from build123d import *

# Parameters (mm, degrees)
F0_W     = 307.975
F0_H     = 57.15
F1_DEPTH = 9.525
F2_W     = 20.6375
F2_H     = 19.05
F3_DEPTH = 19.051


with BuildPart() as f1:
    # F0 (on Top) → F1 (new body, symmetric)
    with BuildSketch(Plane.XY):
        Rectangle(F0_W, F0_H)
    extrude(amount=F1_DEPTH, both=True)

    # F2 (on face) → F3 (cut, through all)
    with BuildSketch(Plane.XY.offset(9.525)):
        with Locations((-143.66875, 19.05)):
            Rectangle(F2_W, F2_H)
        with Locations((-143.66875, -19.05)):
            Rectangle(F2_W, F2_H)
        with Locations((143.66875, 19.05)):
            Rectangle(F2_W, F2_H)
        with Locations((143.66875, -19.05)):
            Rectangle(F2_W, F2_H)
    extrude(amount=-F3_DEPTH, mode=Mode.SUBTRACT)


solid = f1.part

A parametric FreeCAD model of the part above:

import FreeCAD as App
import Part
import Sketcher
from FreeCAD import Vector
Q = App.Units.Quantity

doc = App.newDocument("Part")
body = doc.addObject("PartDesign::Body", "Body")

sketch1 = body.newObject("Sketcher::SketchObject", "Sketch")
sketch1.AttachmentSupport = (doc.getObject("XY_Plane"), [""])
sketch1.MapMode = "FlatFace"
sketch1.addGeometry(Part.LineSegment(Vector(-154, 29, 0), Vector(-154, -29, 0)), False)
sketch1.addGeometry(Part.LineSegment(Vector(-154, -29, 0), Vector(154, -29, 0)), False)
sketch1.addGeometry(Part.LineSegment(Vector(154, -29, 0), Vector(154, 29, 0)), False)
sketch1.addGeometry(Part.LineSegment(Vector(154, 29, 0), Vector(-154, 29, 0)), False)
sketch1.addConstraint(Sketcher.Constraint("Coincident", 0, 2, 1, 1))
sketch1.addConstraint(Sketcher.Constraint("Coincident", 1, 2, 2, 1))
sketch1.addConstraint(Sketcher.Constraint("Coincident", 2, 2, 3, 1))
sketch1.addConstraint(Sketcher.Constraint("Coincident", 3, 2, 0, 1))
sketch1.addConstraint(Sketcher.Constraint("Vertical", 0))
sketch1.addConstraint(Sketcher.Constraint("Horizontal", 1))
sketch1.addConstraint(Sketcher.Constraint("Vertical", 2))
sketch1.addConstraint(Sketcher.Constraint("Horizontal", 3))
sketch1.addConstraint(Sketcher.Constraint("Symmetric", 0, 2, 2, 2, -1, 1))
sketch1.addConstraint(Sketcher.Constraint("DistanceY", 0, 2, 0, 1, Q("2.25 in")))
sketch1.addConstraint(Sketcher.Constraint("DistanceX", 1, 1, 1, 2, Q("12.125 in")))
pad1 = body.newObject("PartDesign::Pad", "Pad")
pad1.Profile = sketch1
pad1.Length = Q("0.75 in")
pad1.Midplane = True

sketch2 = body.newObject("Sketcher::SketchObject", "Sketch001")
sketch2.AttachmentSupport = (doc.getObject("XY_Plane"), [""])
sketch2.MapMode = "FlatFace"
sketch2.AttachmentOffset = App.Placement(Vector(0, 0, 0.375 * 25.4), App.Rotation())
sketch2.addGeometry(Part.LineSegment(Vector(-154, 29, 0), Vector(-154, 10, 0)), False)
sketch2.addGeometry(Part.LineSegment(Vector(-154, 10, 0), Vector(-133, 10, 0)), False)
sketch2.addGeometry(Part.LineSegment(Vector(-133, 10, 0), Vector(-133, 29, 0)), False)
sketch2.addGeometry(Part.LineSegment(Vector(-133, 29, 0), Vector(-154, 29, 0)), False)
sketch2.addGeometry(Part.LineSegment(Vector(-154, -10, 0), Vector(-154, -29, 0)), False)
sketch2.addGeometry(Part.LineSegment(Vector(-154, -29, 0), Vector(-133, -29, 0)), False)
sketch2.addGeometry(Part.LineSegment(Vector(-133, -29, 0), Vector(-133, -10, 0)), False)
sketch2.addGeometry(Part.LineSegment(Vector(-133, -10, 0), Vector(-154, -10, 0)), False)
sketch2.addGeometry(Part.LineSegment(Vector(133, 29, 0), Vector(133, 10, 0)), False)
sketch2.addGeometry(Part.LineSegment(Vector(133, 10, 0), Vector(154, 10, 0)), False)
sketch2.addGeometry(Part.LineSegment(Vector(154, 10, 0), Vector(154, 29, 0)), False)
sketch2.addGeometry(Part.LineSegment(Vector(154, 29, 0), Vector(133, 29, 0)), False)
sketch2.addGeometry(Part.LineSegment(Vector(133, -10, 0), Vector(133, -29, 0)), False)
sketch2.addGeometry(Part.LineSegment(Vector(133, -29, 0), Vector(154, -29, 0)), False)
sketch2.addGeometry(Part.LineSegment(Vector(154, -29, 0), Vector(154, -10, 0)), False)
sketch2.addGeometry(Part.LineSegment(Vector(154, -10, 0), Vector(133, -10, 0)), False)
sketch2.addConstraint(Sketcher.Constraint("Coincident", 0, 2, 1, 1))
sketch2.addConstraint(Sketcher.Constraint("Coincident", 1, 2, 2, 1))
sketch2.addConstraint(Sketcher.Constraint("Coincident", 2, 2, 3, 1))
sketch2.addConstraint(Sketcher.Constraint("Coincident", 3, 2, 0, 1))
sketch2.addConstraint(Sketcher.Constraint("Coincident", 4, 2, 5, 1))
sketch2.addConstraint(Sketcher.Constraint("Coincident", 5, 2, 6, 1))
sketch2.addConstraint(Sketcher.Constraint("Coincident", 6, 2, 7, 1))
sketch2.addConstraint(Sketcher.Constraint("Coincident", 7, 2, 4, 1))
sketch2.addConstraint(Sketcher.Constraint("Coincident", 8, 2, 9, 1))
sketch2.addConstraint(Sketcher.Constraint("Coincident", 9, 2, 10, 1))
sketch2.addConstraint(Sketcher.Constraint("Coincident", 10, 2, 11, 1))
sketch2.addConstraint(Sketcher.Constraint("Coincident", 11, 2, 8, 1))
sketch2.addConstraint(Sketcher.Constraint("Coincident", 12, 2, 13, 1))
sketch2.addConstraint(Sketcher.Constraint("Coincident", 13, 2, 14, 1))
sketch2.addConstraint(Sketcher.Constraint("Coincident", 14, 2, 15, 1))
sketch2.addConstraint(Sketcher.Constraint("Coincident", 15, 2, 12, 1))
sketch2.addConstraint(Sketcher.Constraint("Vertical", 0))
sketch2.addConstraint(Sketcher.Constraint("Horizontal", 1))
sketch2.addConstraint(Sketcher.Constraint("Vertical", 2))
sketch2.addConstraint(Sketcher.Constraint("Horizontal", 3))
sketch2.addConstraint(Sketcher.Constraint("Vertical", 4))
sketch2.addConstraint(Sketcher.Constraint("Horizontal", 5))
sketch2.addConstraint(Sketcher.Constraint("Vertical", 6))
sketch2.addConstraint(Sketcher.Constraint("Horizontal", 7))
sketch2.addConstraint(Sketcher.Constraint("Vertical", 8))
sketch2.addConstraint(Sketcher.Constraint("Horizontal", 9))
sketch2.addConstraint(Sketcher.Constraint("Vertical", 10))
sketch2.addConstraint(Sketcher.Constraint("Horizontal", 11))
sketch2.addConstraint(Sketcher.Constraint("Vertical", 12))
sketch2.addConstraint(Sketcher.Constraint("Horizontal", 13))
sketch2.addConstraint(Sketcher.Constraint("Vertical", 14))
sketch2.addConstraint(Sketcher.Constraint("Horizontal", 15))
sketch2.addConstraint(Sketcher.Constraint("Symmetric", 6, 2, 8, 2, -1, 1))
sketch2.addConstraint(Sketcher.Constraint("Symmetric", 4, 2, 10, 2, -1, 1))
sketch2.addConstraint(Sketcher.Constraint("Symmetric", 2, 2, 12, 2, -1, 1))
sketch2.addConstraint(Sketcher.Constraint("Symmetric", 0, 2, 14, 2, -1, 1))
sketch2.addConstraint(Sketcher.Constraint("Symmetric", 1, 2, 8, 2, -2))
sketch2.addConstraint(Sketcher.Constraint("Symmetric", 3, 2, 10, 2, -2))
sketch2.addConstraint(Sketcher.Constraint("DistanceY", 0, 2, 0, 1, Q("0.75 in")))
sketch2.addConstraint(Sketcher.Constraint("DistanceY", 4, 2, 0, 2, Q("1.5 in")))
sketch2.addConstraint(Sketcher.Constraint("DistanceX", 1, 2, 8, 2, Q("10.5 in")))
sketch2.addConstraint(Sketcher.Constraint("DistanceX", 1, 1, 1, 2, Q("0.8125 in")))
pocket1 = body.newObject("PartDesign::Pocket", "Pocket")
pocket1.Profile = sketch2
pocket1.Type = "ThroughAll"

doc.recompute()
